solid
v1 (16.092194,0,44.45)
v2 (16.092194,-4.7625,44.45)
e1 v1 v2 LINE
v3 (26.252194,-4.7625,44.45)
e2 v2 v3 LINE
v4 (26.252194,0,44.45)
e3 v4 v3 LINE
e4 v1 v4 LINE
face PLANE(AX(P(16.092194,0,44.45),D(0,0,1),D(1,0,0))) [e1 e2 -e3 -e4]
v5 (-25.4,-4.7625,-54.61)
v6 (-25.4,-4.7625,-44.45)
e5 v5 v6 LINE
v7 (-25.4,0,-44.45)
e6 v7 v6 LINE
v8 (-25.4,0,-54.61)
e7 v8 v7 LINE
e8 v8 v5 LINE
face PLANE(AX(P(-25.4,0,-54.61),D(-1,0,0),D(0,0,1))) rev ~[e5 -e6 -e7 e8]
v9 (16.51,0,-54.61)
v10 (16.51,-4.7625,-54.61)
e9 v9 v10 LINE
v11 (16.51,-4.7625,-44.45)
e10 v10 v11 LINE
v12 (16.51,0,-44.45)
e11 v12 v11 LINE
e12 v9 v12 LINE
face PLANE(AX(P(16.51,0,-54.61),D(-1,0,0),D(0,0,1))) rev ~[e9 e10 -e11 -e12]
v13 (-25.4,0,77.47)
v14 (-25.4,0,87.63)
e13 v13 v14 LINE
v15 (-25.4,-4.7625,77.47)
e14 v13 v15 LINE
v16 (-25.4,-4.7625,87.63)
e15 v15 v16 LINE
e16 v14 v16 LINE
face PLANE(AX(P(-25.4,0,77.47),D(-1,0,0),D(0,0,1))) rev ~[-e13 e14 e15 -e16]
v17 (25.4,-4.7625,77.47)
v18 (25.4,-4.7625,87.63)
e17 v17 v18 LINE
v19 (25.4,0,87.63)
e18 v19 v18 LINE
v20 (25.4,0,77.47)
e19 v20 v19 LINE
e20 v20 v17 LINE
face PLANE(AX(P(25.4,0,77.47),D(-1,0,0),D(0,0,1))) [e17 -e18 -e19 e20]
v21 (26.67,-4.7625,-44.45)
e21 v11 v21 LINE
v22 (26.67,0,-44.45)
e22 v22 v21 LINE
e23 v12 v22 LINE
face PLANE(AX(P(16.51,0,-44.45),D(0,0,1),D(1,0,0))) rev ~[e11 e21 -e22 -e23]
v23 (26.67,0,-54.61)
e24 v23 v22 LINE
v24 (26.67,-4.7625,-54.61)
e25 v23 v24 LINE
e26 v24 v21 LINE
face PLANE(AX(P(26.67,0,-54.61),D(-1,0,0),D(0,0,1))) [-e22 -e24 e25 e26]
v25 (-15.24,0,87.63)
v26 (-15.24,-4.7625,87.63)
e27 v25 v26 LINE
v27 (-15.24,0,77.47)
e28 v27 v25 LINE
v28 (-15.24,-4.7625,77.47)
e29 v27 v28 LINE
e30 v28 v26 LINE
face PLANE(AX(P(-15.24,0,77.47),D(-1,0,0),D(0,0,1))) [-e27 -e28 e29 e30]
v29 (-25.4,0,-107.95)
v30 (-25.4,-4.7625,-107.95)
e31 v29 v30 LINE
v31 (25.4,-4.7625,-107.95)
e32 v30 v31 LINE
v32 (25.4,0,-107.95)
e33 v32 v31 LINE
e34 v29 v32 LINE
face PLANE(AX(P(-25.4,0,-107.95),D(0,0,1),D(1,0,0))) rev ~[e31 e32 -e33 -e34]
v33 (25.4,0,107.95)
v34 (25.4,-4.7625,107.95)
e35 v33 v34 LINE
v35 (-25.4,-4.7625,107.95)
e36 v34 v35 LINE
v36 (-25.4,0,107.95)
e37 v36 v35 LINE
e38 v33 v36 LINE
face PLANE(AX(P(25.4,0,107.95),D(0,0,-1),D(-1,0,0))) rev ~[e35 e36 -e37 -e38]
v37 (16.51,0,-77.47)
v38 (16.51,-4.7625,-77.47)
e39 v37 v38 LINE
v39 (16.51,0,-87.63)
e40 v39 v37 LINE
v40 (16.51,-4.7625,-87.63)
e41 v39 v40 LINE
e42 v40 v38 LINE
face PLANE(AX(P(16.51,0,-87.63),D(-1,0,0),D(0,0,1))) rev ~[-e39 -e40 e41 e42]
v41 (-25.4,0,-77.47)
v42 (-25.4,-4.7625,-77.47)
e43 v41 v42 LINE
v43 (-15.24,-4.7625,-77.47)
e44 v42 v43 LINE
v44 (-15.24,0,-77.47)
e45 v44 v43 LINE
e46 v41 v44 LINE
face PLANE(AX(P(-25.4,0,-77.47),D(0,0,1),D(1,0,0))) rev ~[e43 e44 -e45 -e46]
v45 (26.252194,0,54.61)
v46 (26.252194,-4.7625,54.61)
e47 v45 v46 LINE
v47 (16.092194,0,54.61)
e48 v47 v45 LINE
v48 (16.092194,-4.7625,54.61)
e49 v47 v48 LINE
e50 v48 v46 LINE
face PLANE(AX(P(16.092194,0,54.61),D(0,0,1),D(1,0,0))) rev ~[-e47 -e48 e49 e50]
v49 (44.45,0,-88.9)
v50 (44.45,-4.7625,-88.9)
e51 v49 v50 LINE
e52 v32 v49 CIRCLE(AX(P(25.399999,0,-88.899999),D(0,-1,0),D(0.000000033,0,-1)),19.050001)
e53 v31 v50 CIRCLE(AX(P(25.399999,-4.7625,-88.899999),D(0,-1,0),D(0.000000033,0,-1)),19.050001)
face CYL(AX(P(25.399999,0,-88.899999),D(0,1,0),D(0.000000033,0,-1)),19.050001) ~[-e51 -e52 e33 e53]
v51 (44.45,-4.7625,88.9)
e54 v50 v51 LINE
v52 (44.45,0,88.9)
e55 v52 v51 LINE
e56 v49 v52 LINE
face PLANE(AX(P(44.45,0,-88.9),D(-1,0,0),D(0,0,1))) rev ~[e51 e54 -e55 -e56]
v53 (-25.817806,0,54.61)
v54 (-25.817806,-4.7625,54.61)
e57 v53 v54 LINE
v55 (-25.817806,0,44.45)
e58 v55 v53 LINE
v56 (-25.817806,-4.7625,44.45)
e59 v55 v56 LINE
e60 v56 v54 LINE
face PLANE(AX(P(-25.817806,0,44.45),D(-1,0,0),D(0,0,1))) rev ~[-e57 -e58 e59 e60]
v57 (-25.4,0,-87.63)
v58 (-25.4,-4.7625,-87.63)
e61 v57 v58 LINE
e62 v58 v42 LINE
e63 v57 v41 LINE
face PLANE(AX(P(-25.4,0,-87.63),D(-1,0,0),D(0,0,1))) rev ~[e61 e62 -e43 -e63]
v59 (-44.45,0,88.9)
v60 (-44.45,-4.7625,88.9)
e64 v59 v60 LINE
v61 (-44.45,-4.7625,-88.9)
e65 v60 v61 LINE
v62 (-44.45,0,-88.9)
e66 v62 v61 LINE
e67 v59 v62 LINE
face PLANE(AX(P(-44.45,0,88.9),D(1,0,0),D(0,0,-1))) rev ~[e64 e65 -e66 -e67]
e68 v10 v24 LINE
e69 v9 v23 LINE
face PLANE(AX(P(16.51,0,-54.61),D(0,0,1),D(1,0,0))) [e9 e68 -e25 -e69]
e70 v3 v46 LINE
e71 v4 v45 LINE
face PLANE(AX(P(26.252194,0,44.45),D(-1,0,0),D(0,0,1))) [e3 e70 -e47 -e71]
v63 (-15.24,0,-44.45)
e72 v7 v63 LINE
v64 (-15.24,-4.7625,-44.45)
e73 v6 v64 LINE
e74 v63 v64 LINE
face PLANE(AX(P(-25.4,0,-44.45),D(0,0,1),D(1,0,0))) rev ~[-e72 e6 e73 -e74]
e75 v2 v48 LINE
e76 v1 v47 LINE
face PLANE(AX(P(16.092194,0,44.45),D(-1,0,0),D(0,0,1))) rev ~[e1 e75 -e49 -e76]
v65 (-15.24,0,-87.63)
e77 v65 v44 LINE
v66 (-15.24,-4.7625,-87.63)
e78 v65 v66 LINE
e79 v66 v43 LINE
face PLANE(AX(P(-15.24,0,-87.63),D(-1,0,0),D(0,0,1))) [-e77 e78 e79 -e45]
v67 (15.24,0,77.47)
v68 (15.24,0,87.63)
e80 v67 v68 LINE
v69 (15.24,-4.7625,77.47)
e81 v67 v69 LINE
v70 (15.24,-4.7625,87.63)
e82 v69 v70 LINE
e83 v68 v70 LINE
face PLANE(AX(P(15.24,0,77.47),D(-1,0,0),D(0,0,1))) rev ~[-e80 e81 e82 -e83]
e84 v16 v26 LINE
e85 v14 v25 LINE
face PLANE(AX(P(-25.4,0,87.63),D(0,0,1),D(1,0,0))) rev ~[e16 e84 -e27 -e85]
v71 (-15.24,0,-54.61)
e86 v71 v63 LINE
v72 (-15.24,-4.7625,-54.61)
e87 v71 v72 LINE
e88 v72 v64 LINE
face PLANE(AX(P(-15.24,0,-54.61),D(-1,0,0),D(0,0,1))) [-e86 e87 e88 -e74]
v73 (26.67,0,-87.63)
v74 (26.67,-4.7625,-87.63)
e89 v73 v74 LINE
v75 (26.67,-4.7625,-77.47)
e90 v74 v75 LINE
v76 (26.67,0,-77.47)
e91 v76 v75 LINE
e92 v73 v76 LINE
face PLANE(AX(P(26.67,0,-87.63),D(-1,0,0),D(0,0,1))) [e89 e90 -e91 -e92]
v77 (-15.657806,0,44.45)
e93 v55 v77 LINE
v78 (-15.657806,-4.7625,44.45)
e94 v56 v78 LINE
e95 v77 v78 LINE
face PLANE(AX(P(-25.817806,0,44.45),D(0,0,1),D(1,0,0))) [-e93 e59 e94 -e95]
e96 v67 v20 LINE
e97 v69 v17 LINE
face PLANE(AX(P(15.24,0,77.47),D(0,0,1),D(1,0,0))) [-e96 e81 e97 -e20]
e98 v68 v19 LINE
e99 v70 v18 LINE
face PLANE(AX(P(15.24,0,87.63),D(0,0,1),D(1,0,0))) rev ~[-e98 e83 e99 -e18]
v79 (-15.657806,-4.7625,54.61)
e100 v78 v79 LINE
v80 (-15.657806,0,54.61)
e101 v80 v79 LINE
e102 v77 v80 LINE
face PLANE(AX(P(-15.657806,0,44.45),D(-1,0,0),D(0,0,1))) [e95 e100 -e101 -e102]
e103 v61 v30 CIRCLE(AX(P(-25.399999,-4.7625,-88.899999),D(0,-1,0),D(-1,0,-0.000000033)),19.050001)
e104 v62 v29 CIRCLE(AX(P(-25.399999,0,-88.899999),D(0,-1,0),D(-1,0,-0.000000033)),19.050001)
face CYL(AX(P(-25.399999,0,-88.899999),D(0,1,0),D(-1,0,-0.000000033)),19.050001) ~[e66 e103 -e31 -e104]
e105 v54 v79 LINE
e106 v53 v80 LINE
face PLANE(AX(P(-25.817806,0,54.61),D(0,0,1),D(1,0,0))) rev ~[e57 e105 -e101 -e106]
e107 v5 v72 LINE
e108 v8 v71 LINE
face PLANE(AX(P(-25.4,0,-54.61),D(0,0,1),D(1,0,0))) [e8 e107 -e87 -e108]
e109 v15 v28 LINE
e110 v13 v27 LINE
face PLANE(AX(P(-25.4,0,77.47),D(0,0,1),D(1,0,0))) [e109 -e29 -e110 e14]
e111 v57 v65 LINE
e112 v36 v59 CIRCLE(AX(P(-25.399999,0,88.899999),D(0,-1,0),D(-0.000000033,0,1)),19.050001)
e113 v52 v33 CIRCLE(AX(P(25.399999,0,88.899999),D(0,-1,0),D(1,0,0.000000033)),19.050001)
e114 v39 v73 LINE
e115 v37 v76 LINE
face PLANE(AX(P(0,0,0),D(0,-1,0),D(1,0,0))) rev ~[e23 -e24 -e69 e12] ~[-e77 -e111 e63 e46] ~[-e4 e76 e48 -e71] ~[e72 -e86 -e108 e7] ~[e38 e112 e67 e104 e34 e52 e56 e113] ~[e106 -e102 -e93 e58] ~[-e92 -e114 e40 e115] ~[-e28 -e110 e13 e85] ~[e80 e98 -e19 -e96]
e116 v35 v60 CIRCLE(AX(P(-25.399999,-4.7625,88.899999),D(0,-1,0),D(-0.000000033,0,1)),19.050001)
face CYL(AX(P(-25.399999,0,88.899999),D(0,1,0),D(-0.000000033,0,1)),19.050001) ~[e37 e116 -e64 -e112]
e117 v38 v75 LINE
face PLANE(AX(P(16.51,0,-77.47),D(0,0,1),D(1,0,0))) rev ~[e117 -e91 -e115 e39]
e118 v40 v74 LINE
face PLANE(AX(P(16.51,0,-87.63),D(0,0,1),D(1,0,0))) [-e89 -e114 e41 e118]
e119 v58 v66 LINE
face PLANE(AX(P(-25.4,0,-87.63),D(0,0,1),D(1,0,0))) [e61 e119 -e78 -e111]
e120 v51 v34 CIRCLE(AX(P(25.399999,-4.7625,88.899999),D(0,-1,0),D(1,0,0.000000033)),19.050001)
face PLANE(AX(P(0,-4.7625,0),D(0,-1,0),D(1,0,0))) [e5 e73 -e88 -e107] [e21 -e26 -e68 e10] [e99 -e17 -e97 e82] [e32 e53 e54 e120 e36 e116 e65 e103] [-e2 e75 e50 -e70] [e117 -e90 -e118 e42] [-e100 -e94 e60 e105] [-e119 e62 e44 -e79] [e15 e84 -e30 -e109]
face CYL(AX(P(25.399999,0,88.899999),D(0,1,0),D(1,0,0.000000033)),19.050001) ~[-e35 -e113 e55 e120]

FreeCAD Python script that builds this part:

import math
import FreeCAD as App
import Part
import Sketcher
Q = App.Units.Quantity

doc = App.newDocument("Part")
body = doc.addObject("PartDesign::Body", "Body")

# Sketch on XZ plane
sketch1 = body.newObject("Sketcher::SketchObject", "Sketch")
sketch1.AttachmentSupport = (doc.getObject("XZ_Plane"), [""])
sketch1.MapMode = "FlatFace"
sketch1.addGeometry([
    Part.LineSegment(App.Vector(25, 108, 0), App.Vector(-25, 108, 0)),  # 0
    Part.ArcOfCircle(Part.Circle(App.Vector(-25, 89, 0), App.Vector(0, 0, 1), 19), math.radians(90), math.radians(180)),  # 1
    Part.LineSegment(App.Vector(-44, 89, 0), App.Vector(-44, -89, 0)),  # 2
    Part.ArcOfCircle(Part.Circle(App.Vector(-25, -89, 0), App.Vector(0, 0, 1), 19), math.radians(-180), math.radians(-90)),  # 3
    Part.LineSegment(App.Vector(-25, -108, 0), App.Vector(25, -108, 0)),  # 4
    Part.ArcOfCircle(Part.Circle(App.Vector(25, -89, 0), App.Vector(0, 0, 1), 19), math.radians(-90), math.radians(0)),  # 5
    Part.LineSegment(App.Vector(44, -89, 0), App.Vector(44, 89, 0)),  # 6
    Part.ArcOfCircle(Part.Circle(App.Vector(25, 89, 0), App.Vector(0, 0, 1), 19), math.radians(0), math.radians(90)),  # 7
    Part.LineSegment(App.Vector(-15, -88, 0), App.Vector(-25, -88, 0)),  # 8
    Part.LineSegment(App.Vector(-25, -88, 0), App.Vector(-25, -77, 0)),  # 9
    Part.LineSegment(App.Vector(-25, -77, 0), App.Vector(-15, -77, 0)),  # 10
    Part.LineSegment(App.Vector(-15, -77, 0), App.Vector(-15, -88, 0)),  # 11
    Part.LineSegment(App.Vector(-15, -55, 0), App.Vector(-25, -55, 0)),  # 12
    Part.LineSegment(App.Vector(-25, -55, 0), App.Vector(-25, -44, 0)),  # 13
    Part.LineSegment(App.Vector(-25, -44, 0), App.Vector(-15, -44, 0)),  # 14
    Part.LineSegment(App.Vector(-15, -44, 0), App.Vector(-15, -55, 0)),  # 15
    Part.LineSegment(App.Vector(27, -88, 0), App.Vector(17, -88, 0)),  # 16
    Part.LineSegment(App.Vector(17, -88, 0), App.Vector(17, -77, 0)),  # 17
    Part.LineSegment(App.Vector(17, -77, 0), App.Vector(27, -77, 0)),  # 18
    Part.LineSegment(App.Vector(27, -77, 0), App.Vector(27, -88, 0)),  # 19
    Part.LineSegment(App.Vector(27, -55, 0), App.Vector(17, -55, 0)),  # 20
    Part.LineSegment(App.Vector(17, -55, 0), App.Vector(17, -44, 0)),  # 21
    Part.LineSegment(App.Vector(17, -44, 0), App.Vector(27, -44, 0)),  # 22
    Part.LineSegment(App.Vector(27, -44, 0), App.Vector(27, -55, 0)),  # 23
    Part.LineSegment(App.Vector(-16, 44, 0), App.Vector(-26, 44, 0)),  # 24
    Part.LineSegment(App.Vector(-26, 44, 0), App.Vector(-26, 55, 0)),  # 25
    Part.LineSegment(App.Vector(-26, 55, 0), App.Vector(-16, 55, 0)),  # 26
    Part.LineSegment(App.Vector(-16, 55, 0), App.Vector(-16, 44, 0)),  # 27
    Part.LineSegment(App.Vector(-15, 77, 0), App.Vector(-25, 77, 0)),  # 28
    Part.LineSegment(App.Vector(-25, 77, 0), App.Vector(-25, 88, 0)),  # 29
    Part.LineSegment(App.Vector(-25, 88, 0), App.Vector(-15, 88, 0)),  # 30
    Part.LineSegment(App.Vector(-15, 88, 0), App.Vector(-15, 77, 0)),  # 31
    Part.LineSegment(App.Vector(26, 44, 0), App.Vector(16, 44, 0)),  # 32
    Part.LineSegment(App.Vector(16, 44, 0), App.Vector(16, 55, 0)),  # 33
    Part.LineSegment(App.Vector(16, 55, 0), App.Vector(26, 55, 0)),  # 34
    Part.LineSegment(App.Vector(26, 55, 0), App.Vector(26, 44, 0)),  # 35
    Part.LineSegment(App.Vector(25, 77, 0), App.Vector(15, 77, 0)),  # 36
    Part.LineSegment(App.Vector(15, 77, 0), App.Vector(15, 88, 0)),  # 37
    Part.LineSegment(App.Vector(15, 88, 0), App.Vector(25, 88, 0)),  # 38
    Part.LineSegment(App.Vector(25, 88, 0), App.Vector(25, 77, 0)),  # 39
], False)
sketch1.addConstraint([
    Sketcher.Constraint("Tangent", 0, 2, 1, 1),
    Sketcher.Constraint("Tangent", 1, 2, 2, 1),
    Sketcher.Constraint("Tangent", 2, 2, 3, 1),
    Sketcher.Constraint("Tangent", 3, 2, 4, 1),
    Sketcher.Constraint("Tangent", 4, 2, 5, 1),
    Sketcher.Constraint("Tangent", 5, 2, 6, 1),
    Sketcher.Constraint("Tangent", 6, 2, 7, 1),
    Sketcher.Constraint("Tangent", 7, 2, 0, 1),
    Sketcher.Constraint("Coincident", 8, 2, 9, 1),
    Sketcher.Constraint("Coincident", 9, 2, 10, 1),
    Sketcher.Constraint("Coincident", 10, 2, 11, 1),
    Sketcher.Constraint("Coincident", 11, 2, 8, 1),
    Sketcher.Constraint("Coincident", 12, 2, 13, 1),
    Sketcher.Constraint("Coincident", 13, 2, 14, 1),
    Sketcher.Constraint("Coincident", 14, 2, 15, 1),
    Sketcher.Constraint("Coincident", 15, 2, 12, 1),
    Sketcher.Constraint("Coincident", 16, 2, 17, 1),
    Sketcher.Constraint("Coincident", 17, 2, 18, 1),
    Sketcher.Constraint("Coincident", 18, 2, 19, 1),
    Sketcher.Constraint("Coincident", 19, 2, 16, 1),
    Sketcher.Constraint("Coincident", 20, 2, 21, 1),
    Sketcher.Constraint("Coincident", 21, 2, 22, 1),
    Sketcher.Constraint("Coincident", 22, 2, 23, 1),
    Sketcher.Constraint("Coincident", 23, 2, 20, 1),
    Sketcher.Constraint("Coincident", 24, 2, 25, 1),
    Sketcher.Constraint("Coincident", 25, 2, 26, 1),
    Sketcher.Constraint("Coincident", 26, 2, 27, 1),
    Sketcher.Constraint("Coincident", 27, 2, 24, 1),
    Sketcher.Constraint("Coincident", 28, 2, 29, 1),
    Sketcher.Constraint("Coincident", 29, 2, 30, 1),
    Sketcher.Constraint("Coincident", 30, 2, 31, 1),
    Sketcher.Constraint("Coincident", 31, 2, 28, 1),
    Sketcher.Constraint("Coincident", 32, 2, 33, 1),
    Sketcher.Constraint("Coincident", 33, 2, 34, 1),
    Sketcher.Constraint("Coincident", 34, 2, 35, 1),
    Sketcher.Constraint("Coincident", 35, 2, 32, 1),
    Sketcher.Constraint("Coincident", 36, 2, 37, 1),
    Sketcher.Constraint("Coincident", 37, 2, 38, 1),
    Sketcher.Constraint("Coincident", 38, 2, 39, 1),
    Sketcher.Constraint("Coincident", 39, 2, 36, 1),
    Sketcher.Constraint("Horizontal", 0),
    Sketcher.Constraint("Vertical", 2),
    Sketcher.Constraint("Horizontal", 4),
    Sketcher.Constraint("Vertical", 6),
    Sketcher.Constraint("Horizontal", 8),
    Sketcher.Constraint("Vertical", 9),
    Sketcher.Constraint("Horizontal", 10),
    Sketcher.Constraint("Vertical", 11),
    Sketcher.Constraint("Horizontal", 12),
    Sketcher.Constraint("Vertical", 13),
    Sketcher.Constraint("Horizontal", 14),
    Sketcher.Constraint("Vertical", 15),
    Sketcher.Constraint("Horizontal", 16),
    Sketcher.Constraint("Vertical", 17),
    Sketcher.Constraint("Horizontal", 18),
    Sketcher.Constraint("Vertical", 19),
    Sketcher.Constraint("Horizontal", 20),
    Sketcher.Constraint("Vertical", 21),
    Sketcher.Constraint("Horizontal", 22),
    Sketcher.Constraint("Vertical", 23),
    Sketcher.Constraint("Horizontal", 24),
    Sketcher.Constraint("Vertical", 25),
    Sketcher.Constraint("Horizontal", 26),
    Sketcher.Constraint("Vertical", 27),
    Sketcher.Constraint("Horizontal", 28),
    Sketcher.Constraint("Vertical", 29),
    Sketcher.Constraint("Horizontal", 30),
    Sketcher.Constraint("Vertical", 31),
    Sketcher.Constraint("Horizontal", 32),
    Sketcher.Constraint("Vertical", 33),
    Sketcher.Constraint("Horizontal", 34),
    Sketcher.Constraint("Vertical", 35),
    Sketcher.Constraint("Horizontal", 36),
    Sketcher.Constraint("Vertical", 37),
    Sketcher.Constraint("Horizontal", 38),
    Sketcher.Constraint("Vertical", 39),
    Sketcher.Constraint("Equal", 1, 3),
    Sketcher.Constraint("Equal", 3, 5),
    Sketcher.Constraint("Equal", 5, 7),
    Sketcher.Constraint("Symmetric", 1, 3, 5, 3, -1, 1),
    Sketcher.Constraint("Symmetric", 10, 2, 36, 2, -1, 1),
    Sketcher.Constraint("Symmetric", 8, 2, 38, 2, -1, 1),
    Sketcher.Constraint("Symmetric", 31, 2, 36, 2, -2),
    Sketcher.Constraint("Symmetric", 29, 2, 38, 2, -2),
    Sketcher.Constraint("Horizontal", 11, 2, 16, 2),
    Sketcher.Constraint("Horizontal", 10, 2, 17, 2),
    Sketcher.Constraint("Horizontal", 15, 2, 20, 2),
    Sketcher.Constraint("Horizontal", 14, 2, 21, 2),
    Sketcher.Constraint("Horizontal", 27, 2, 32, 2),
    Sketcher.Constraint("Horizontal", 26, 2, 33, 2),
    Sketcher.Constraint("Vertical", 3, 2, 8, 2),
    Sketcher.Constraint("Vertical", 9, 2, 12, 2),
    Sketcher.Constraint("Vertical", 11, 2, 14, 2),
    Sketcher.Constraint("Vertical", 17, 2, 20, 2),
    Sketcher.Constraint("Vertical", 19, 2, 22, 2),
    Sketcher.Constraint("Equal", 14, 16),
    Sketcher.Constraint("Equal", 22, 24),
    Sketcher.Constraint("Equal", 30, 32),
    Sketcher.Constraint("Equal", 38, 9),
    Sketcher.Constraint("Equal", 11, 13),
    Sketcher.Constraint("Equal", 23, 25),
    Sketcher.Constraint("DistanceX", 0, 2, 0, 1, Q("2 in")),
    Sketcher.Constraint("DistanceY", 2, 2, 2, 1, Q("7 in")),
    Sketcher.Constraint("Radius", 1, Q("0.75 in")),
    Sketcher.Constraint("DistanceX", 8, 2, 8, 1, Q("0.4 in")),
    Sketcher.Constraint("DistanceY", 3, 2, 8, 2, Q("0.8 in")),
    Sketcher.Constraint("DistanceY", 9, 2, 12, 2, Q("0.9 in")),
    Sketcher.Constraint("DistanceX", 16, 2, 5, 2, Q("1.1 in")),
    Sketcher.Constraint("DistanceY", 24, 2, 0, 2, Q("2.5 in")),
    Sketcher.Constraint("DistanceX", 27, 2, 32, 2, Q("1.25 in")),
    Sketcher.Constraint("DistanceX", 24, 2, -1, 1, 25.817806),
])
pad1 = body.newObject("PartDesign::Pad", "Pad")
pad1.Profile = sketch1
pad1.Length = Q("0.1875 in")

doc.recompute()
